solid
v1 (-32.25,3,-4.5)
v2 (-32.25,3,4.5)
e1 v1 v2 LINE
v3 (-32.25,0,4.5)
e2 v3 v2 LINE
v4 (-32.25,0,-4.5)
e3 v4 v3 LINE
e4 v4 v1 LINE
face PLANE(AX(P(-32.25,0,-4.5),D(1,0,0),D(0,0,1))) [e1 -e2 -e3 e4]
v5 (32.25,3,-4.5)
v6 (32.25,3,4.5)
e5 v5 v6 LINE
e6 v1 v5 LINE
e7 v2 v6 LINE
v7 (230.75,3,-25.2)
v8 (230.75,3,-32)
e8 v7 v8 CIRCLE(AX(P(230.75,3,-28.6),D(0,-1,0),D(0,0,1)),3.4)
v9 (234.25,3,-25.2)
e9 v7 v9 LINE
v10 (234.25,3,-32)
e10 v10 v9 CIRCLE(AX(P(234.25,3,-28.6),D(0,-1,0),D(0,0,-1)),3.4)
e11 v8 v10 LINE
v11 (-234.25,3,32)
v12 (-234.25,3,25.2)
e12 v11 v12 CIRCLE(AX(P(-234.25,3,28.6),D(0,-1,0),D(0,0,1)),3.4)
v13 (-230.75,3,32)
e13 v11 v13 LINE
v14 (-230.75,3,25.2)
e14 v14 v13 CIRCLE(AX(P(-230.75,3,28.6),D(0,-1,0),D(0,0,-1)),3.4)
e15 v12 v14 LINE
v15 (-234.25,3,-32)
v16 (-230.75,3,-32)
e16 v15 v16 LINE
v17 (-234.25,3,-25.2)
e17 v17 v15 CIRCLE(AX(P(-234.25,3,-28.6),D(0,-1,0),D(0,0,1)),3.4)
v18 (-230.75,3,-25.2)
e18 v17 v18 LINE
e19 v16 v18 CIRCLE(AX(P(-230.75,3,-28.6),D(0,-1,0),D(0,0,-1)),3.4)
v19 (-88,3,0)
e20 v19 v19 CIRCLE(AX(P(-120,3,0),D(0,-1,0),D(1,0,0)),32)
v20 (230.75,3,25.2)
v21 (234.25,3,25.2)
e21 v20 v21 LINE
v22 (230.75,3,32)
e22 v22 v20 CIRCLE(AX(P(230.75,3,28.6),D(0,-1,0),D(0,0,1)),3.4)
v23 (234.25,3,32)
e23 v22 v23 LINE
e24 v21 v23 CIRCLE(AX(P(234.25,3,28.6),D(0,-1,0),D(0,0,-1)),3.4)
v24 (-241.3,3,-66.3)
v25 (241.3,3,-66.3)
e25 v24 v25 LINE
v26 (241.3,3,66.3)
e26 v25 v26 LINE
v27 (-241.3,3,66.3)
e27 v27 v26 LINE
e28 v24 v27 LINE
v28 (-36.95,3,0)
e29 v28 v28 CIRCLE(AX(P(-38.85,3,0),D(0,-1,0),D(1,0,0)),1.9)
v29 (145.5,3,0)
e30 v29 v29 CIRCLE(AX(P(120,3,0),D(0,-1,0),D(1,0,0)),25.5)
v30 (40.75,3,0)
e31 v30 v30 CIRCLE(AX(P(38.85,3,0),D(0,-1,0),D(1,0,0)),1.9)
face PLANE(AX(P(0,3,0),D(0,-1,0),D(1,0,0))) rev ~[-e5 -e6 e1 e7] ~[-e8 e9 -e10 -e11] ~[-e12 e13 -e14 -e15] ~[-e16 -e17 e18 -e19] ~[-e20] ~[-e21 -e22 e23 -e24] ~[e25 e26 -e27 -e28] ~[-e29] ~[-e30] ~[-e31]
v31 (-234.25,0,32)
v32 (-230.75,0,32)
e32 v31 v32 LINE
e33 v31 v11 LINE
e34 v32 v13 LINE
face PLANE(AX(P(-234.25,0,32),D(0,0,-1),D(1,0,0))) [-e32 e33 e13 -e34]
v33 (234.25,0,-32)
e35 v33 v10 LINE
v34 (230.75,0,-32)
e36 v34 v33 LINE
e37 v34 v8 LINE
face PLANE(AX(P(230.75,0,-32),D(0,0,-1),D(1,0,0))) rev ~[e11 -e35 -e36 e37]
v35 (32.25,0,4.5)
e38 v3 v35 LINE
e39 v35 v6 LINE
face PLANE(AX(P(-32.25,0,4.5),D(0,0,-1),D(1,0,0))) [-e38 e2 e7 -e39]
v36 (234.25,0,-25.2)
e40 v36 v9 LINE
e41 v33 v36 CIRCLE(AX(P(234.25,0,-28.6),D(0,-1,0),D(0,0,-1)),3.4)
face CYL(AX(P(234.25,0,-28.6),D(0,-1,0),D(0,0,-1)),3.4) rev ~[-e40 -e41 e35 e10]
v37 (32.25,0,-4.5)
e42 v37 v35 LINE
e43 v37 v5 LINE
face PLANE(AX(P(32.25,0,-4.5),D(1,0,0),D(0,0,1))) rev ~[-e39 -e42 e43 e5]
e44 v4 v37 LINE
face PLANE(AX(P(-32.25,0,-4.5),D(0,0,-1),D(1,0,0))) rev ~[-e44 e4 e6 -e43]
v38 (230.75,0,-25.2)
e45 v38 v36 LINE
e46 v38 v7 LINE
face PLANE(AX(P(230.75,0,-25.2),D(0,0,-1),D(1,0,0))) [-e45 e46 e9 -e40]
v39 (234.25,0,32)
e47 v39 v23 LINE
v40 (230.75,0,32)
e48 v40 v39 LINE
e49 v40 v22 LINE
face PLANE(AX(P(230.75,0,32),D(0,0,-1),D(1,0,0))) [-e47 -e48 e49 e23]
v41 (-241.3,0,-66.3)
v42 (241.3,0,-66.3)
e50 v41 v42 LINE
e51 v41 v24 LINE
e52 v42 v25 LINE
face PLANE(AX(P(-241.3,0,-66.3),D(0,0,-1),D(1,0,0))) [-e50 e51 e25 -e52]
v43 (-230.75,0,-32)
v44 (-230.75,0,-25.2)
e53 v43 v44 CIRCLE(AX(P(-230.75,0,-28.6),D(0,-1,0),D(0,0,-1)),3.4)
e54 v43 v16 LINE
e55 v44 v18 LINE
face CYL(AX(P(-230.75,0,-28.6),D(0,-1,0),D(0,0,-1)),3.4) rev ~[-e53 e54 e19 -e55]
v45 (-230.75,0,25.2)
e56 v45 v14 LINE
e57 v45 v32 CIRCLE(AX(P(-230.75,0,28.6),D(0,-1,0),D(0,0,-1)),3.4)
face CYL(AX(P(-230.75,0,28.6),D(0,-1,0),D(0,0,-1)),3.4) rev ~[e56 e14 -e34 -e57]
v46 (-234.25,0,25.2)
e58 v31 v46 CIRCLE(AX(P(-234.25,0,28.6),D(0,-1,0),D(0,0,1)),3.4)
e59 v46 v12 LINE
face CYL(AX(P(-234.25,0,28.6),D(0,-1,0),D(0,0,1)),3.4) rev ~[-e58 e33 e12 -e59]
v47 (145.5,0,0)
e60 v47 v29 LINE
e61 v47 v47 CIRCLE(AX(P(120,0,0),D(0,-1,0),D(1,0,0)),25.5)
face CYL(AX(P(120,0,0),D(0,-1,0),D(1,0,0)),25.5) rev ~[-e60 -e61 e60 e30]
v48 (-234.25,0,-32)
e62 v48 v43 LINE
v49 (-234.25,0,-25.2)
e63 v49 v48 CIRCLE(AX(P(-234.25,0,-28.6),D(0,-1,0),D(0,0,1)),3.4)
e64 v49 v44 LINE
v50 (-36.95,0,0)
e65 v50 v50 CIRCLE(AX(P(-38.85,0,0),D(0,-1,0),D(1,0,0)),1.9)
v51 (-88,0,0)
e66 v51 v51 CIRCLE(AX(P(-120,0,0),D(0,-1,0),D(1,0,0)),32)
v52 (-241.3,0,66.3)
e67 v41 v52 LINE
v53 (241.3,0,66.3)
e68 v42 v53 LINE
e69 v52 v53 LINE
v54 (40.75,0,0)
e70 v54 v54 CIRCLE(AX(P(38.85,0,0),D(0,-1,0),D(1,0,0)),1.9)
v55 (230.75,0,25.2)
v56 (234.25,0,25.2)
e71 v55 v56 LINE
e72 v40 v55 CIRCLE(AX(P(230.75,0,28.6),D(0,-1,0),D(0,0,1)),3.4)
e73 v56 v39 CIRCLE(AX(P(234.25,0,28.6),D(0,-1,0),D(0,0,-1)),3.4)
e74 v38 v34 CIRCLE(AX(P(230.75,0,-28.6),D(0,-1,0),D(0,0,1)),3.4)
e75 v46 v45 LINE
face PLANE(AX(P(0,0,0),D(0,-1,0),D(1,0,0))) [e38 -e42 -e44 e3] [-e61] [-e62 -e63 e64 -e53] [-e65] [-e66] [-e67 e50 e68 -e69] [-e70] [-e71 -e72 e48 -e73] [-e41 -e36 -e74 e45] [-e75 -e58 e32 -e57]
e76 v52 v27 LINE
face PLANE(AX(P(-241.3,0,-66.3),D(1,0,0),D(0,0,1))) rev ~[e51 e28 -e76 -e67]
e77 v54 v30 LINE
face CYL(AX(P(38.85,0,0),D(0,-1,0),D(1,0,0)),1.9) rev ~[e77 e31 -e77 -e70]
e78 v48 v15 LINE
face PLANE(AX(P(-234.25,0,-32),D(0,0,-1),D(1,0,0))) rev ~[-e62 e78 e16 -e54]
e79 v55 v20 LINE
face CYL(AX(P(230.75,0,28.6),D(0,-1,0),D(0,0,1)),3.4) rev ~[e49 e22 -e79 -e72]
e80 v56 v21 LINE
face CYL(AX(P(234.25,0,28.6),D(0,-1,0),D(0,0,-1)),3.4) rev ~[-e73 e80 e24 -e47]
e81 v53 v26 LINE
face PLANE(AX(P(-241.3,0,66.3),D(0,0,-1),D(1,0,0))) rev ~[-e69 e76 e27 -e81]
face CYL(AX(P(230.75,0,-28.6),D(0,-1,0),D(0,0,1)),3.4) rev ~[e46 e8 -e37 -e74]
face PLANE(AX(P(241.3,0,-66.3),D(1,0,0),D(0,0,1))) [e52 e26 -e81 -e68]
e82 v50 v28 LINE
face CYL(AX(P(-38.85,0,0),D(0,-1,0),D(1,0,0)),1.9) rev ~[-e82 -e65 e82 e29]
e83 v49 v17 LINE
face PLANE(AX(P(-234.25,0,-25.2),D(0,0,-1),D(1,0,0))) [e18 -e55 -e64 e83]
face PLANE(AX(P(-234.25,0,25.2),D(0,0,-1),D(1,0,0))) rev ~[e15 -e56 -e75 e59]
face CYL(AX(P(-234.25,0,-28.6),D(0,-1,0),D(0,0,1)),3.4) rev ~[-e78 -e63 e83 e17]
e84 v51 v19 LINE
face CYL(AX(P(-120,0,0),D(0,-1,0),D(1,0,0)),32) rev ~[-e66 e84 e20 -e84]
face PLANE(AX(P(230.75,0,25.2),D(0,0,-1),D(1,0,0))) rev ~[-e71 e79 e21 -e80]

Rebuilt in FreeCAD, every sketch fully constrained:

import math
import FreeCAD as App
import Part
import Sketcher

V = App.Vector

doc = App.newDocument("Part")
body = doc.addObject("PartDesign::Body", "Body")

sketch1 = doc.addObject("Sketcher::SketchObject", "Sketch")
body.addObject(sketch1)
sketch1.AttachmentSupport = (doc.XZ_Plane, [""])
sketch1.MapMode = "FlatFace"
sketch1.addGeometry(Part.LineSegment(V(-241, 66, 0), V(-241, -66, 0)), False)
sketch1.addGeometry(Part.LineSegment(V(-241, -66, 0), V(241, -66, 0)), False)
sketch1.addGeometry(Part.LineSegment(V(241, -66, 0), V(241, 66, 0)), False)
sketch1.addGeometry(Part.LineSegment(V(241, 66, 0), V(-241, 66, 0)), False)
sketch1.addConstraint(Sketcher.Constraint("Coincident", 0, 2, 1, 1))
sketch1.addConstraint(Sketcher.Constraint("Coincident", 1, 2, 2, 1))
sketch1.addConstraint(Sketcher.Constraint("Coincident", 2, 2, 3, 1))
sketch1.addConstraint(Sketcher.Constraint("Coincident", 3, 2, 0, 1))
sketch1.addConstraint(Sketcher.Constraint("Vertical", 0))
sketch1.addConstraint(Sketcher.Constraint("Horizontal", 1))
sketch1.addConstraint(Sketcher.Constraint("Vertical", 2))
sketch1.addConstraint(Sketcher.Constraint("Horizontal", 3))
sketch1.addConstraint(Sketcher.Constraint("Symmetric", 0, 2, 2, 2, -1, 1))
sketch1.addConstraint(Sketcher.Constraint("DistanceX", 1, 1, 1, 2, 482.6))
sketch1.addConstraint(Sketcher.Constraint("DistanceY", 0, 2, 0, 1, 132.6))
pad1 = doc.addObject("PartDesign::Pad", "Pad")
body.addObject(pad1)
pad1.Profile = sketch1
pad1.Length = 3
pad1.Reversed = True

sketch2 = doc.addObject("Sketcher::SketchObject", "Sketch001")
body.addObject(sketch2)
sketch2.AttachmentSupport = (doc.XZ_Plane, [""])
sketch2.MapMode = "FlatFace"
sketch2.addGeometry(Part.LineSegment(V(-234.2, 25.2, 0), V(-230.8, 25.2, 0)), False)
sketch2.addGeometry(Part.ArcOfCircle(Part.Circle(V(-230.8, 28.6, 0), V(0, 0, 1), 3.4), math.radians(-90), math.radians(90)), False)
sketch2.addGeometry(Part.LineSegment(V(-230.8, 32, 0), V(-234.2, 32, 0)), False)
sketch2.addGeometry(Part.ArcOfCircle(Part.Circle(V(-234.2, 28.6, 0), V(0, 0, 1), 3.4), math.radians(90), math.radians(270)), False)
sketch2.addGeometry(Part.LineSegment(V(-234.2, -32, 0), V(-230.8, -32, 0)), False)
sketch2.addGeometry(Part.ArcOfCircle(Part.Circle(V(-230.8, -28.6, 0), V(0, 0, 1), 3.4), math.radians(-90), math.radians(90)), False)
sketch2.addGeometry(Part.LineSegment(V(-230.8, -25.2, 0), V(-234.2, -25.2, 0)), False)
sketch2.addGeometry(Part.ArcOfCircle(Part.Circle(V(-234.2, -28.6, 0), V(0, 0, 1), 3.4), math.radians(90), math.radians(270)), False)
sketch2.addGeometry(Part.LineSegment(V(230.8, 25.2, 0), V(234.2, 25.2, 0)), False)
sketch2.addGeometry(Part.ArcOfCircle(Part.Circle(V(234.2, 28.6, 0), V(0, 0, 1), 3.4), math.radians(-90), math.radians(90)), False)
sketch2.addGeometry(Part.LineSegment(V(234.2, 32, 0), V(230.8, 32, 0)), False)
sketch2.addGeometry(Part.ArcOfCircle(Part.Circle(V(230.8, 28.6, 0), V(0, 0, 1), 3.4), math.radians(90), math.radians(270)), False)
sketch2.addGeometry(Part.LineSegment(V(230.8, -32, 0), V(234.2, -32, 0)), False)
sketch2.addGeometry(Part.ArcOfCircle(Part.Circle(V(234.2, -28.6, 0), V(0, 0, 1), 3.4), math.radians(-90), math.radians(90)), False)
sketch2.addGeometry(Part.LineSegment(V(234.2, -25.2, 0), V(230.8, -25.2, 0)), False)
sketch2.addGeometry(Part.ArcOfCircle(Part.Circle(V(230.8, -28.6, 0), V(0, 0, 1), 3.4), math.radians(90), math.radians(270)), False)
sketch2.addConstraint(Sketcher.Constraint("Tangent", 0, 2, 1, 1))
sketch2.addConstraint(Sketcher.Constraint("Tangent", 1, 2, 2, 1))
sketch2.addConstraint(Sketcher.Constraint("Tangent", 2, 2, 3, 1))
sketch2.addConstraint(Sketcher.Constraint("Tangent", 3, 2, 0, 1))
sketch2.addConstraint(Sketcher.Constraint("Tangent", 4, 2, 5, 1))
sketch2.addConstraint(Sketcher.Constraint("Tangent", 5, 2, 6, 1))
sketch2.addConstraint(Sketcher.Constraint("Tangent", 6, 2, 7, 1))
sketch2.addConstraint(Sketcher.Constraint("Tangent", 7, 2, 4, 1))
sketch2.addConstraint(Sketcher.Constraint("Tangent", 8, 2, 9, 1))
sketch2.addConstraint(Sketcher.Constraint("Tangent", 9, 2, 10, 1))
sketch2.addConstraint(Sketcher.Constraint("Tangent", 10, 2, 11, 1))
sketch2.addConstraint(Sketcher.Constraint("Tangent", 11, 2, 8, 1))
sketch2.addConstraint(Sketcher.Constraint("Tangent", 12, 2, 13, 1))
sketch2.addConstraint(Sketcher.Constraint("Tangent", 13, 2, 14, 1))
sketch2.addConstraint(Sketcher.Constraint("Tangent", 14, 2, 15, 1))
sketch2.addConstraint(Sketcher.Constraint("Tangent", 15, 2, 12, 1))
sketch2.addConstraint(Sketcher.Constraint("Horizontal", 0))
sketch2.addConstraint(Sketcher.Constraint("Horizontal", 2))
sketch2.addConstraint(Sketcher.Constraint("Horizontal", 4))
sketch2.addConstraint(Sketcher.Constraint("Horizontal", 6))
sketch2.addConstraint(Sketcher.Constraint("Horizontal", 8))
sketch2.addConstraint(Sketcher.Constraint("Horizontal", 10))
sketch2.addConstraint(Sketcher.Constraint("Horizontal", 12))
sketch2.addConstraint(Sketcher.Constraint("Horizontal", 14))
sketch2.addConstraint(Sketcher.Constraint("Equal", 3, 5))
sketch2.addConstraint(Sketcher.Constraint("Equal", 7, 9))
sketch2.addConstraint(Sketcher.Constraint("Equal", 11, 13))
sketch2.addConstraint(Sketcher.Constraint("Symmetric", 7, 3, 9, 3, -1, 1))
sketch2.addConstraint(Sketcher.Constraint("Symmetric", 3, 3, 13, 3, -1, 1))
sketch2.addConstraint(Sketcher.Constraint("Symmetric", 3, 3, 9, 3, -2))
sketch2.addConstraint(Sketcher.Constraint("Vertical", 1, 3, 5, 3))
sketch2.addConstraint(Sketcher.Constraint("Vertical", 11, 3, 15, 3))
sketch2.addConstraint(Sketcher.Constraint("Equal", 6, 8))
sketch2.addConstraint(Sketcher.Constraint("Radius", 1, 3.4))
sketch2.addConstraint(Sketcher.Constraint("DistanceX", 0, 1, 0, 2, 3.5))
sketch2.addConstraint(Sketcher.Constraint("DistanceY", -1, 1, 1, 2, 32.0))
sketch2.addConstraint(Sketcher.Constraint("DistanceX", 1, 3, 9, 3, 465.0))
pocket1 = doc.addObject("PartDesign::Pocket", "Pocket")
body.addObject(pocket1)
pocket1.Profile = sketch2
pocket1.Length = 3

sketch3 = doc.addObject("Sketcher::SketchObject", "Sketch002")
body.addObject(sketch3)
sketch3.AttachmentSupport = (doc.XZ_Plane, [""])
sketch3.MapMode = "FlatFace"
sketch3.addGeometry(Part.Circle(V(-120, 0, 0), V(0, 0, 1), 32), False)
sketch3.addGeometry(Part.Circle(V(120, 0, 0), V(0, 0, 1), 25.5), False)
sketch3.addGeometry(Part.LineSegment(V(-32.2, 4.5, 0), V(-32.2, -4.5, 0)), False)
sketch3.addGeometry(Part.LineSegment(V(-32.2, -4.5, 0), V(32.2, -4.5, 0)), False)
sketch3.addGeometry(Part.LineSegment(V(32.2, -4.5, 0), V(32.2, 4.5, 0)), False)
sketch3.addGeometry(Part.LineSegment(V(32.2, 4.5, 0), V(-32.2, 4.5, 0)), False)
sketch3.addGeometry(Part.Circle(V(38.9, 0, 0), V(0, 0, 1), 1.9), False)
sketch3.addGeometry(Part.Circle(V(-38.9, 0, 0), V(0, 0, 1), 1.9), False)
sketch3.addConstraint(Sketcher.Constraint("Coincident", 2, 2, 3, 1))
sketch3.addConstraint(Sketcher.Constraint("Coincident", 3, 2, 4, 1))
sketch3.addConstraint(Sketcher.Constraint("Coincident", 4, 2, 5, 1))
sketch3.addConstraint(Sketcher.Constraint("Coincident", 5, 2, 2, 1))
sketch3.addConstraint(Sketcher.Constraint("Vertical", 2))
sketch3.addConstraint(Sketcher.Constraint("Horizontal", 3))
sketch3.addConstraint(Sketcher.Constraint("Vertical", 4))
sketch3.addConstraint(Sketcher.Constraint("Horizontal", 5))
sketch3.addConstraint(Sketcher.Constraint("Equal", 6, 7))
sketch3.addConstraint(Sketcher.Constraint("Symmetric", 0, 3, 1, 3, -1, 1))
sketch3.addConstraint(Sketcher.Constraint("Symmetric", 6, 3, 7, 3, -1, 1))
sketch3.addConstraint(Sketcher.Constraint("Symmetric", 2, 2, 4, 2, -1, 1))
sketch3.addConstraint(Sketcher.Constraint("PointOnObject", 0, 3, -1))
sketch3.addConstraint(Sketcher.Constraint("PointOnObject", 6, 3, -1))
sketch3.addConstraint(Sketcher.Constraint("Diameter", 0, 64.0))
sketch3.addConstraint(Sketcher.Constraint("Diameter", 1, 51.0))
sketch3.addConstraint(Sketcher.Constraint("Diameter", 6, 3.8))
sketch3.addConstraint(Sketcher.Constraint("DistanceY", 2, 2, 2, 1, 9.0))
sketch3.addConstraint(Sketcher.Constraint("DistanceX", 3, 1, 3, 2, 64.5))
sketch3.addConstraint(Sketcher.Constraint("DistanceX", 0, 3, -1, 1, 120.0))
sketch3.addConstraint(Sketcher.Constraint("DistanceX", 7, 3, 6, 3, 77.7))
pocket2 = doc.addObject("PartDesign::Pocket", "Pocket001")
body.addObject(pocket2)
pocket2.Profile = sketch3
pocket2.Length = 3

doc.recompute()
